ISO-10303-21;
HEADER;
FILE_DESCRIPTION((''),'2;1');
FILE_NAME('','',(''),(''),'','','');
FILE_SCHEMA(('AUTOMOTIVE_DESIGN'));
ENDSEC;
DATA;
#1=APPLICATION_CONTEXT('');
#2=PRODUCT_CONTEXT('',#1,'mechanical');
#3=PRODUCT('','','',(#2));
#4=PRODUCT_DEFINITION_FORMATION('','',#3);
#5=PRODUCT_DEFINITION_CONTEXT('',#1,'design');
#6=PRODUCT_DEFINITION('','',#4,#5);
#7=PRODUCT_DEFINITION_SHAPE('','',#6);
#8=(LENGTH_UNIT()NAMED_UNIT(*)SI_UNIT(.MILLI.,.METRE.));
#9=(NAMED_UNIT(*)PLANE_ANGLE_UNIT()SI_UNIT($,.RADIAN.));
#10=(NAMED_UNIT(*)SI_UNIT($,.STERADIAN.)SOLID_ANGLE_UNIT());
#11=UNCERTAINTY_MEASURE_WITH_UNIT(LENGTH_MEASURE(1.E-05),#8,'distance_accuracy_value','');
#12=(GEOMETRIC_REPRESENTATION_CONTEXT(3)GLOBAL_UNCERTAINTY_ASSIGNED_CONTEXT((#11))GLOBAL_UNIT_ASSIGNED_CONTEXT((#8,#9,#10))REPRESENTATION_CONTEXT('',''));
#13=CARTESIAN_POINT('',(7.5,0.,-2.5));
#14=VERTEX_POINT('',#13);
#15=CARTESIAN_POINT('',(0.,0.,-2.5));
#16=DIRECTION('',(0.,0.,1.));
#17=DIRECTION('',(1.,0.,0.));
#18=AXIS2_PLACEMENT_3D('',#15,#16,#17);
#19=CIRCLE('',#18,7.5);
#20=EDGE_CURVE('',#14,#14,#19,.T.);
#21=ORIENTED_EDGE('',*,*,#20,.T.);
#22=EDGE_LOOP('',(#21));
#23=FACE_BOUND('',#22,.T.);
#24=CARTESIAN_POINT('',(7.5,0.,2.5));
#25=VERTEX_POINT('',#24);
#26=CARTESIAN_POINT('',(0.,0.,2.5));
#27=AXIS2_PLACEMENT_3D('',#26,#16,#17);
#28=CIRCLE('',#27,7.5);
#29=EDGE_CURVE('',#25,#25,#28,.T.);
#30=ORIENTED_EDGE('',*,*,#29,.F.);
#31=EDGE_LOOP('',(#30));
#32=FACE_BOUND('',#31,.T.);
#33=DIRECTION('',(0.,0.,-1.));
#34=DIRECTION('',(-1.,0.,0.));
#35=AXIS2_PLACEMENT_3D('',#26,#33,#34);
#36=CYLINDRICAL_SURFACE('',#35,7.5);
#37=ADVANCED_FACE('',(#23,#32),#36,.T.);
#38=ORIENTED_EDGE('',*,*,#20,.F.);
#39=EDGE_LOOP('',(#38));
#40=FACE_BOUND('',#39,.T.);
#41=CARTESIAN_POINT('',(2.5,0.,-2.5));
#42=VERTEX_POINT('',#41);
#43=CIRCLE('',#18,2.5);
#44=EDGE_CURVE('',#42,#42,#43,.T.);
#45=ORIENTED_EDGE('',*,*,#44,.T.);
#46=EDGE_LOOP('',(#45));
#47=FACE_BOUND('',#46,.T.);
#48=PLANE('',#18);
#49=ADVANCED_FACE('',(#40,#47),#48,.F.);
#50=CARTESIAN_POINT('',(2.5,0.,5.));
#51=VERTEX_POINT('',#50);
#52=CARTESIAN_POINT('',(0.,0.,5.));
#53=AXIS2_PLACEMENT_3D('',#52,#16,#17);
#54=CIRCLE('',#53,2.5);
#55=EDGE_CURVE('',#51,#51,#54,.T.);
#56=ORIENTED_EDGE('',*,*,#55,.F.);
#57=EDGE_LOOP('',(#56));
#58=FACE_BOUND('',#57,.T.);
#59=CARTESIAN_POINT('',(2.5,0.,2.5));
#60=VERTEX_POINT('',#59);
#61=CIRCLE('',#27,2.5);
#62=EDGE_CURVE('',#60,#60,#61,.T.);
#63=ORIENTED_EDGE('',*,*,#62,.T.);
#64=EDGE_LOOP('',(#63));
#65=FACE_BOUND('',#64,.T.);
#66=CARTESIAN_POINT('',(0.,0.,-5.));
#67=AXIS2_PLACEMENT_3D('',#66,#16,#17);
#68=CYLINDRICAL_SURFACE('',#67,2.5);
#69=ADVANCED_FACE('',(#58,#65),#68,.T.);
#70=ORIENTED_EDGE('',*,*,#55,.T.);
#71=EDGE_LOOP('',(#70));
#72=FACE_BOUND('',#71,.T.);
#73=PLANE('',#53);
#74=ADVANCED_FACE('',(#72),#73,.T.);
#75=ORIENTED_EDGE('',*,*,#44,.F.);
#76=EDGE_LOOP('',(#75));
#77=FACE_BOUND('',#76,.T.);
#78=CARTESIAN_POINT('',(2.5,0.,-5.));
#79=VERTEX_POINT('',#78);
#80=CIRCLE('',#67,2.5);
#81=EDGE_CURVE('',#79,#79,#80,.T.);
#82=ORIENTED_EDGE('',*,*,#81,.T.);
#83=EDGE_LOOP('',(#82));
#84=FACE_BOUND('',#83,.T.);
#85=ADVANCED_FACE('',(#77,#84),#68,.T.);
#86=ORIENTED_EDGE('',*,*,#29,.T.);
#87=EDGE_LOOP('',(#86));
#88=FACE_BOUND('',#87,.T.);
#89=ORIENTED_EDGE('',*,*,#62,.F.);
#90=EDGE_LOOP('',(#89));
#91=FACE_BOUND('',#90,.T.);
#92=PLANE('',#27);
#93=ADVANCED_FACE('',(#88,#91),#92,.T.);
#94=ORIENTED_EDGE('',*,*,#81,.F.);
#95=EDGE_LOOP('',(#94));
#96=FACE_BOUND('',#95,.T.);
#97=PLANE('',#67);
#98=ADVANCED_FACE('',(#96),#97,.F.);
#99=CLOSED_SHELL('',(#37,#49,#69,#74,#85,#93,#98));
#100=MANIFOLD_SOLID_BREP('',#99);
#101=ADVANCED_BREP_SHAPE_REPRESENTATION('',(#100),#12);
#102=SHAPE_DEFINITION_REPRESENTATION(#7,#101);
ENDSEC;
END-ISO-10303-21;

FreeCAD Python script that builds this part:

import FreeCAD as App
import Part
import Sketcher

doc = App.newDocument("Part")
body = doc.addObject("PartDesign::Body", "Body")

# Sketch on XY plane
sketch1 = body.newObject("Sketcher::SketchObject", "Sketch")
sketch1.AttachmentSupport = (doc.getObject("XY_Plane"), [""])
sketch1.MapMode = "FlatFace"
sketch1.addGeometry(Part.Circle(App.Vector(0, 0, 0), App.Vector(0, 0, 1), 8), False)
sketch1.addConstraint([
    Sketcher.Constraint("Coincident", 0, 3, -1, 1),
    Sketcher.Constraint("Diameter", 0, 15.0),
])
pad1 = body.newObject("PartDesign::Pad", "Pad")
pad1.Profile = sketch1
pad1.Length = 5
pad1.Midplane = True

# Sketch on XY plane
sketch2 = body.newObject("Sketcher::SketchObject", "Sketch001")
sketch2.AttachmentSupport = (doc.getObject("XY_Plane"), [""])
sketch2.MapMode = "FlatFace"
sketch2.addGeometry(Part.Circle(App.Vector(0, 0, 0), App.Vector(0, 0, 1), 2.5), False)
sketch2.addConstraint([
    Sketcher.Constraint("Coincident", 0, 3, -1, 1),
    Sketcher.Constraint("Diameter", 0, 5.0),
])
pad2 = body.newObject("PartDesign::Pad", "Pad001")
pad2.Profile = sketch2
pad2.Type = "TwoLengths"
pad2.Length = 5
pad2.Length2 = 5

doc.recompute()
